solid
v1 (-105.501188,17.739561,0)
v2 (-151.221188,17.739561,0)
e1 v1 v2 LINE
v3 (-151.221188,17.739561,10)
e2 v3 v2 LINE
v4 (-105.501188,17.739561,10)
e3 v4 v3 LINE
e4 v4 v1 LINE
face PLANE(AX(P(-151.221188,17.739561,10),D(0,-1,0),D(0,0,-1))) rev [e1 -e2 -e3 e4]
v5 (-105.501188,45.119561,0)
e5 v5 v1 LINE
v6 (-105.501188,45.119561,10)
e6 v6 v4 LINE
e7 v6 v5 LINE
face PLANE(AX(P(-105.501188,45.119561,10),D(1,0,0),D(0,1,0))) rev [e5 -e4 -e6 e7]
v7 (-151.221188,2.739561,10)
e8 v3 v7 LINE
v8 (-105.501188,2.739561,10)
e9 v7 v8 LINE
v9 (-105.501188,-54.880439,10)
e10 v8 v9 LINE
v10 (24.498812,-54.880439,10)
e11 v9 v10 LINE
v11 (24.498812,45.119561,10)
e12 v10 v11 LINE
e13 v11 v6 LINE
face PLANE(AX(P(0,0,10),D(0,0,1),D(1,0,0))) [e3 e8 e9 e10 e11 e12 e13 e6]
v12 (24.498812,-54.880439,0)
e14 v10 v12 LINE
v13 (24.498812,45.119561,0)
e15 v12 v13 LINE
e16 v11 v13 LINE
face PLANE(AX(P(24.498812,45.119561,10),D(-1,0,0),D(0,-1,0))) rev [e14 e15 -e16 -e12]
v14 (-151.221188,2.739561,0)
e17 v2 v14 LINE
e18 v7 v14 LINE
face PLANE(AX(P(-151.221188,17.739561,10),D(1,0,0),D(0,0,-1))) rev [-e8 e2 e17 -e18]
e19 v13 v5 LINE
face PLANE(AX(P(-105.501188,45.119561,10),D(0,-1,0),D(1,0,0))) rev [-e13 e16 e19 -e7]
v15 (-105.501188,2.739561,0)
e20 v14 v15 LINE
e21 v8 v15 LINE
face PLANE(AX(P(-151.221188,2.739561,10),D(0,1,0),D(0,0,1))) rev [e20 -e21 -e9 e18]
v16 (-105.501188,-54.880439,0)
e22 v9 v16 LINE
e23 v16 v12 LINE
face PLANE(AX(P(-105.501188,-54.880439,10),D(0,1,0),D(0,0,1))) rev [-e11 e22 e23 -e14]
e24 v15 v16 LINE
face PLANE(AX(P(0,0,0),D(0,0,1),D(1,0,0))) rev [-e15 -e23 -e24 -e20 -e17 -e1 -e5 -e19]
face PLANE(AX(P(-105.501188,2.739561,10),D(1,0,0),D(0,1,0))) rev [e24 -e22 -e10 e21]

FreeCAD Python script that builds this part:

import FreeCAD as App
import Part
import Sketcher


def add_polygon(sketch, points):
    """Adds a closed chain of lines whose ends are joined by coincident constraints."""
    first, n = sketch.GeometryCount, len(points)
    for a, b in zip(points, points[1:] + points[:1]):
        sketch.addGeometry(Part.LineSegment(App.Vector(*a, 0), App.Vector(*b, 0)), False)
    for i in range(n):
        sketch.addConstraint(Sketcher.Constraint("Coincident", first + i, 2, first + (i + 1) % n, 1))

doc = App.newDocument("Part")
body = doc.addObject("PartDesign::Body", "Body")

# Sketch on XY plane
sketch1 = body.newObject("Sketcher::SketchObject", "Sketch")
sketch1.AttachmentSupport = (doc.getObject("XY_Plane"), [""])
sketch1.MapMode = "FlatFace"
add_polygon(sketch1, [(24, 45), (-106, 45), (-106, 18), (-151, 18), (-151, 3), (-106, 3), (-106, -55), (24, -55)])  # lines 0-7
sketch1.addConstraint(Sketcher.Constraint("Horizontal", 0))
sketch1.addConstraint(Sketcher.Constraint("Vertical", 1))
sketch1.addConstraint(Sketcher.Constraint("Horizontal", 2))
sketch1.addConstraint(Sketcher.Constraint("Vertical", 3))
sketch1.addConstraint(Sketcher.Constraint("Horizontal", 4))
sketch1.addConstraint(Sketcher.Constraint("Vertical", 5))
sketch1.addConstraint(Sketcher.Constraint("Horizontal", 6))
sketch1.addConstraint(Sketcher.Constraint("Vertical", 7))
sketch1.addConstraint(Sketcher.Constraint("Vertical", 1, 2, 4, 2))
sketch1.addConstraint(Sketcher.Constraint("DistanceX", 0, 2, 0, 1, 130.0))
sketch1.addConstraint(Sketcher.Constraint("DistanceY", 3, 2, 3, 1, 15.0))
sketch1.addConstraint(Sketcher.Constraint("DistanceY", 7, 1, 7, 2, 100.0))
sketch1.addConstraint(Sketcher.Constraint("DistanceX", 2, 2, 2, 1, 45.72))
sketch1.addConstraint(Sketcher.Constraint("DistanceY", 1, 2, 1, 1, 27.38))
sketch1.addConstraint(Sketcher.Constraint("DistanceX", 0, 2, -1, 1, 105.501188))
sketch1.addConstraint(Sketcher.Constraint("DistanceY", -1, 1, 0, 2, 45.119561))
pad1 = body.newObject("PartDesign::Pad", "Pad")
pad1.Profile = sketch1
pad1.Length = 10

doc.recompute()
